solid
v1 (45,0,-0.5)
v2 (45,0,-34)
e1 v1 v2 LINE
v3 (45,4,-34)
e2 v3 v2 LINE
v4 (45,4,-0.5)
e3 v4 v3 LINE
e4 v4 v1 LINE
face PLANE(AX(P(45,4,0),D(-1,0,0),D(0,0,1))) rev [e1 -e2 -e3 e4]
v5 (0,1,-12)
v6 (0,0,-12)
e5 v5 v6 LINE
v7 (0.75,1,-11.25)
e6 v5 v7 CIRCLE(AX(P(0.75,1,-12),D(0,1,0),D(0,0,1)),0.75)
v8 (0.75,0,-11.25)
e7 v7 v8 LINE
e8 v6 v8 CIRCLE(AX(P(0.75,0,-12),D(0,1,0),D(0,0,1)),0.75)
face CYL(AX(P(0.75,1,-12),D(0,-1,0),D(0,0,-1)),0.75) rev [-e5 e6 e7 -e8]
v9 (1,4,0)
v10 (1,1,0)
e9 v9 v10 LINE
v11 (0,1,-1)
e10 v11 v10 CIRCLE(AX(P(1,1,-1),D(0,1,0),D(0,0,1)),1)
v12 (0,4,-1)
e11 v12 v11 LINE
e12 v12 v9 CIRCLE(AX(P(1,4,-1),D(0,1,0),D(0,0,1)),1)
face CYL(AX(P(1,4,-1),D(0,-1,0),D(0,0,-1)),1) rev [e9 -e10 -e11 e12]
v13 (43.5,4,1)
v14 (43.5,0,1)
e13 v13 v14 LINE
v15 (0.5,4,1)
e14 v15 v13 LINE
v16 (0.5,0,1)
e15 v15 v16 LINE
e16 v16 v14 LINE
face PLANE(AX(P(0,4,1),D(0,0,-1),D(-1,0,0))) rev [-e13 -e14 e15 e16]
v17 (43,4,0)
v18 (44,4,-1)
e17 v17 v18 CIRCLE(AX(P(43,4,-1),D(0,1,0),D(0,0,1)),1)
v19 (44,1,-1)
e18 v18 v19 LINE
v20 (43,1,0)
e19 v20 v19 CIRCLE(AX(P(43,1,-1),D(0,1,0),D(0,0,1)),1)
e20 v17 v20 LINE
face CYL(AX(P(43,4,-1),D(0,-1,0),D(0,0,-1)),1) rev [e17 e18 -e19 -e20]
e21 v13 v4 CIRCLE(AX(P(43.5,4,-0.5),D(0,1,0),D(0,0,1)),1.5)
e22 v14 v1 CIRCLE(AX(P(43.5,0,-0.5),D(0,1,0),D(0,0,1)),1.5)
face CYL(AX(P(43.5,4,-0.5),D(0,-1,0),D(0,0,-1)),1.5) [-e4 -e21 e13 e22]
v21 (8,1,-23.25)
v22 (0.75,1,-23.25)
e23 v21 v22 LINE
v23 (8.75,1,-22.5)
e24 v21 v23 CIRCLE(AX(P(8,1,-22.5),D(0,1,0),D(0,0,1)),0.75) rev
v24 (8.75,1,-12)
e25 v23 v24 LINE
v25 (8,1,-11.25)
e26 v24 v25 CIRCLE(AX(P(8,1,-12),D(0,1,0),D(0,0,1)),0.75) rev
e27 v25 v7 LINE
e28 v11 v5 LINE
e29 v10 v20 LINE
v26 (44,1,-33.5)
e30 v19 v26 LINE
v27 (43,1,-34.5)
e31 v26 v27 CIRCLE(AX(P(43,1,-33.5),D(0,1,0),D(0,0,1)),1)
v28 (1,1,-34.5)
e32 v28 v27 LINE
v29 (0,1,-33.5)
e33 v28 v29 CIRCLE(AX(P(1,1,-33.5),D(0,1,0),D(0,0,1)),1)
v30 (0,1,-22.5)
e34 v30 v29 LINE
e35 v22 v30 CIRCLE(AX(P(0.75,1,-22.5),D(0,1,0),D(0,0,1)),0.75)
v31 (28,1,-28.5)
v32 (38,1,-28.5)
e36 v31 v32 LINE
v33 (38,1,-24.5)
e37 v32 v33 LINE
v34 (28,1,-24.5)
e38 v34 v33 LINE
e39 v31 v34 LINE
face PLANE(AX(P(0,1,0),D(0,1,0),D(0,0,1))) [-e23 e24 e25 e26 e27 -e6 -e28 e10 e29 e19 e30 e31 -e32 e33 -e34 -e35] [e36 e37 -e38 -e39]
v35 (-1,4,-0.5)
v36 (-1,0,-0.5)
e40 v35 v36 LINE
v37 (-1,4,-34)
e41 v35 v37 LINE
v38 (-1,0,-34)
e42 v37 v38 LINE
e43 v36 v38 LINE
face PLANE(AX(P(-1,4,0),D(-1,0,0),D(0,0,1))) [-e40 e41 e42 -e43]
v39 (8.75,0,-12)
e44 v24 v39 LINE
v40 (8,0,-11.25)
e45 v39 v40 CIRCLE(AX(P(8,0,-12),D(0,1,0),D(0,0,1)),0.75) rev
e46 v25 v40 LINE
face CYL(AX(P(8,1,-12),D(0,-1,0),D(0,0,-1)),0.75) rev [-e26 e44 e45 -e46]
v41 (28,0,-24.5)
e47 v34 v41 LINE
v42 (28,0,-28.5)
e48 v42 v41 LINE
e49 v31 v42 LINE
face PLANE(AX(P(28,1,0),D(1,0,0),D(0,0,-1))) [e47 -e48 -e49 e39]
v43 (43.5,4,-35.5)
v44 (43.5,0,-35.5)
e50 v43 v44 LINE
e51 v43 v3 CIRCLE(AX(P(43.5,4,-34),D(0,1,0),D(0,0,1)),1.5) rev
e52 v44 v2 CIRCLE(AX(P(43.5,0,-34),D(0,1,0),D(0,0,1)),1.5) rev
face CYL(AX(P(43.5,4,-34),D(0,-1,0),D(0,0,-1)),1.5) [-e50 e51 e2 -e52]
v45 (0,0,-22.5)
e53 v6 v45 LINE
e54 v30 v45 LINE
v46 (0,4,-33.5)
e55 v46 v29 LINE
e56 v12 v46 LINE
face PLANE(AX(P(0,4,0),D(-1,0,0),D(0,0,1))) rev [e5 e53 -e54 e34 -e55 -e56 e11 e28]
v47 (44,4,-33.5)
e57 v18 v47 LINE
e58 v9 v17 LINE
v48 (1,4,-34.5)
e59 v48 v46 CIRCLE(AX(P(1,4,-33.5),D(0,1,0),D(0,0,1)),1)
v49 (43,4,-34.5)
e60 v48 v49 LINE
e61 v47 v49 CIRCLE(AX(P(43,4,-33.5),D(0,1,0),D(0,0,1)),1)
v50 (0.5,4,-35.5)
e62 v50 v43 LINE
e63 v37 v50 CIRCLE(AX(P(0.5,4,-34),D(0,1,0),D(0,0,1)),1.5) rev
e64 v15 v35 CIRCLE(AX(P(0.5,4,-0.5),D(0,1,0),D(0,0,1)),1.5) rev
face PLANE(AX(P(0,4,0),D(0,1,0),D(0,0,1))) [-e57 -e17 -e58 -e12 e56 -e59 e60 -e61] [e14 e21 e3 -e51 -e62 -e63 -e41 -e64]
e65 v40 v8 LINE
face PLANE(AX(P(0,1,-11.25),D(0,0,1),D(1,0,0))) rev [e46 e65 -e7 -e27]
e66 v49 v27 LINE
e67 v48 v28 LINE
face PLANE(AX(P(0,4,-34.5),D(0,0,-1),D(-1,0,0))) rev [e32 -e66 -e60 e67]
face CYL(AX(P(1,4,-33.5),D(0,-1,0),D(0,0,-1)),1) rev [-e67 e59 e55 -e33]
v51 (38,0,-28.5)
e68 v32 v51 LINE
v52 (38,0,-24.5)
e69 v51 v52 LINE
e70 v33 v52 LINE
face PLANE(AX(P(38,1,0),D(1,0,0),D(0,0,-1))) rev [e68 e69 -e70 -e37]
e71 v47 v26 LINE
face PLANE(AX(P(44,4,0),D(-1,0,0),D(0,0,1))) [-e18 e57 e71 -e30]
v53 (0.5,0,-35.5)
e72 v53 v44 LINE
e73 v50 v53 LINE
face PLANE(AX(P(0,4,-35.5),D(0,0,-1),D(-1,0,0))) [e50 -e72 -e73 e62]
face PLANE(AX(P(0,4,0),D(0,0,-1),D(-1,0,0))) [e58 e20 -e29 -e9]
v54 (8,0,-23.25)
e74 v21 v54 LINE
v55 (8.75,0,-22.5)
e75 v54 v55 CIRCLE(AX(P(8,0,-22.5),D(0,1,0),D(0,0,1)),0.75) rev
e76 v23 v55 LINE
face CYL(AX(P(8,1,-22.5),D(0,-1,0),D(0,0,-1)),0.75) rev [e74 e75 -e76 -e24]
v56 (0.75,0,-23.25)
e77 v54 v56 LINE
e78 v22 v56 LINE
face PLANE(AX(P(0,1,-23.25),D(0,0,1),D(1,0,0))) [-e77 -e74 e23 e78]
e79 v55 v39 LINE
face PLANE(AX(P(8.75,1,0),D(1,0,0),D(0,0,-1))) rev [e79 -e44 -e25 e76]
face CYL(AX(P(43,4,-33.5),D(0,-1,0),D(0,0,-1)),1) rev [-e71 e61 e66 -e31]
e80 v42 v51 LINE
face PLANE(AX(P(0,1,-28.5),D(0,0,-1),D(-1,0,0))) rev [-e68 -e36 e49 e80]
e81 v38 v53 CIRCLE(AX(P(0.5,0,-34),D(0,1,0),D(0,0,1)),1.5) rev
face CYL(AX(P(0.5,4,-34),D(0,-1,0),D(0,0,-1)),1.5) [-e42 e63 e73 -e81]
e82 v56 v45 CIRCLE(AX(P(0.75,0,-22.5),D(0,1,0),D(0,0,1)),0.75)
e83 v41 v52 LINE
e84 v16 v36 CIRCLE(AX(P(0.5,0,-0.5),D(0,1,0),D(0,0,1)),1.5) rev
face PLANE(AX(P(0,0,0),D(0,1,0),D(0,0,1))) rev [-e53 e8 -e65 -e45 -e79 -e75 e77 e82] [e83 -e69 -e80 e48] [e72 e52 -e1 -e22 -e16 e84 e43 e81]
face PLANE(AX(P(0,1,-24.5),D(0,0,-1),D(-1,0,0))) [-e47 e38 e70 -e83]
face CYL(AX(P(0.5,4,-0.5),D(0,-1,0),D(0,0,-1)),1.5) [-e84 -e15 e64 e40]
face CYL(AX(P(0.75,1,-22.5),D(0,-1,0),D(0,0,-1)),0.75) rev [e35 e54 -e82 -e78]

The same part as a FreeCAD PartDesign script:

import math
import FreeCAD as App
import Part
import Sketcher
Q = App.Units.Quantity


def add_polygon(sketch, points):
    """Adds a closed chain of lines whose ends are joined by coincident constraints."""
    first, n = sketch.GeometryCount, len(points)
    for a, b in zip(points, points[1:] + points[:1]):
        sketch.addGeometry(Part.LineSegment(App.Vector(*a, 0), App.Vector(*b, 0)), False)
    for i in range(n):
        sketch.addConstraint(Sketcher.Constraint("Coincident", first + i, 2, first + (i + 1) % n, 1))

doc = App.newDocument("Part")
body = doc.addObject("PartDesign::Body", "Body")

# Sketch on XZ plane
sketch1 = body.newObject("Sketcher::SketchObject", "Sketch")
sketch1.AttachmentSupport = (doc.getObject("XZ_Plane"), [""])
sketch1.MapMode = "FlatFace"
sketch1.addGeometry(Part.LineSegment(App.Vector(8.8, -22.5, 0), App.Vector(8.8, -12, 0)), False)  # 0
sketch1.addGeometry(Part.ArcOfCircle(Part.Circle(App.Vector(8, -12, 0), App.Vector(0, 0, 1), 0.8), math.radians(0), math.radians(90)), False)  # 1
sketch1.addGeometry(Part.LineSegment(App.Vector(8, -11.2, 0), App.Vector(0.8, -11.2, 0)), False)  # 2
sketch1.addGeometry(Part.ArcOfCircle(Part.Circle(App.Vector(0.8, -12, 0), App.Vector(0, 0, 1), 0.8), math.radians(90), math.radians(180)), False)  # 3
sketch1.addGeometry(Part.LineSegment(App.Vector(0, -12, 0), App.Vector(0, -1, 0)), False)  # 4
sketch1.addGeometry(Part.ArcOfCircle(Part.Circle(App.Vector(1, -1, 0), App.Vector(0, 0, 1), 1), math.radians(90), math.radians(180)), False)  # 5
sketch1.addGeometry(Part.LineSegment(App.Vector(1, 0, 0), App.Vector(43, 0, 0)), False)  # 6
sketch1.addGeometry(Part.ArcOfCircle(Part.Circle(App.Vector(43, -1, 0), App.Vector(0, 0, 1), 1), math.radians(0), math.radians(90)), False)  # 7
sketch1.addGeometry(Part.LineSegment(App.Vector(44, -1, 0), App.Vector(44, -33.5, 0)), False)  # 8
sketch1.addGeometry(Part.ArcOfCircle(Part.Circle(App.Vector(43, -33.5, 0), App.Vector(0, 0, 1), 1), math.radians(-90), math.radians(0)), False)  # 9
sketch1.addGeometry(Part.LineSegment(App.Vector(43, -34.5, 0), App.Vector(1, -34.5, 0)), False)  # 10
sketch1.addGeometry(Part.ArcOfCircle(Part.Circle(App.Vector(1, -33.5, 0), App.Vector(0, 0, 1), 1), math.radians(-180), math.radians(-90)), False)  # 11
sketch1.addGeometry(Part.LineSegment(App.Vector(0, -33.5, 0), App.Vector(0, -22.5, 0)), False)  # 12
sketch1.addGeometry(Part.ArcOfCircle(Part.Circle(App.Vector(0.8, -22.5, 0), App.Vector(0, 0, 1), 0.8), math.radians(180), math.radians(270)), False)  # 13
sketch1.addGeometry(Part.LineSegment(App.Vector(0.8, -23.2, 0), App.Vector(8, -23.2, 0)), False)  # 14
sketch1.addGeometry(Part.ArcOfCircle(Part.Circle(App.Vector(8, -22.5, 0), App.Vector(0, 0, 1), 0.8), math.radians(-90), math.radians(0)), False)  # 15
add_polygon(sketch1, [(38, -24.5), (28, -24.5), (28, -28.5), (38, -28.5)])  # lines 16-19
sketch1.addConstraint(Sketcher.Constraint("Tangent", 0, 2, 1, 1))
sketch1.addConstraint(Sketcher.Constraint("Tangent", 1, 2, 2, 1))
sketch1.addConstraint(Sketcher.Constraint("Tangent", 2, 2, 3, 1))
sketch1.addConstraint(Sketcher.Constraint("Tangent", 3, 2, 4, 1))
sketch1.addConstraint(Sketcher.Constraint("Tangent", 4, 2, 5, 2))
sketch1.addConstraint(Sketcher.Constraint("Tangent", 5, 1, 6, 1))
sketch1.addConstraint(Sketcher.Constraint("Tangent", 6, 2, 7, 2))
sketch1.addConstraint(Sketcher.Constraint("Tangent", 7, 1, 8, 1))
sketch1.addConstraint(Sketcher.Constraint("Tangent", 8, 2, 9, 2))
sketch1.addConstraint(Sketcher.Constraint("Tangent", 9, 1, 10, 1))
sketch1.addConstraint(Sketcher.Constraint("Tangent", 10, 2, 11, 2))
sketch1.addConstraint(Sketcher.Constraint("Tangent", 11, 1, 12, 1))
sketch1.addConstraint(Sketcher.Constraint("Tangent", 12, 2, 13, 1))
sketch1.addConstraint(Sketcher.Constraint("Tangent", 13, 2, 14, 1))
sketch1.addConstraint(Sketcher.Constraint("Tangent", 14, 2, 15, 1))
sketch1.addConstraint(Sketcher.Constraint("Tangent", 15, 2, 0, 1))
sketch1.addConstraint(Sketcher.Constraint("Vertical", 0))
sketch1.addConstraint(Sketcher.Constraint("Horizontal", 2))
sketch1.addConstraint(Sketcher.Constraint("Vertical", 4))
sketch1.addConstraint(Sketcher.Constraint("Horizontal", 6))
sketch1.addConstraint(Sketcher.Constraint("Vertical", 8))
sketch1.addConstraint(Sketcher.Constraint("Horizontal", 10))
sketch1.addConstraint(Sketcher.Constraint("Vertical", 12))
sketch1.addConstraint(Sketcher.Constraint("Horizontal", 14))
sketch1.addConstraint(Sketcher.Constraint("Horizontal", 16))
sketch1.addConstraint(Sketcher.Constraint("Vertical", 17))
sketch1.addConstraint(Sketcher.Constraint("Horizontal", 18))
sketch1.addConstraint(Sketcher.Constraint("Vertical", 19))
sketch1.addConstraint(Sketcher.Constraint("Equal", 1, 3))
sketch1.addConstraint(Sketcher.Constraint("Equal", 5, 7))
sketch1.addConstraint(Sketcher.Constraint("Equal", 7, 9))
sketch1.addConstraint(Sketcher.Constraint("Equal", 9, 11))
sketch1.addConstraint(Sketcher.Constraint("Equal", 3, 13))
sketch1.addConstraint(Sketcher.Constraint("Equal", 13, 15))
sketch1.addConstraint(Sketcher.Constraint("PointOnObject", 3, 2, -2))
sketch1.addConstraint(Sketcher.Constraint("PointOnObject", 5, 1, -1))
sketch1.addConstraint(Sketcher.Constraint("PointOnObject", 11, 1, -2))
sketch1.addConstraint(Sketcher.Constraint("Equal", 4, 12))
sketch1.addConstraint(Sketcher.Constraint("Radius", 5, Q("1 mm")))
sketch1.addConstraint(Sketcher.Constraint("DistanceX", 6, 1, 6, 2, Q("42 mm")))
sketch1.addConstraint(Sketcher.Constraint("DistanceX", 16, 2, 16, 1, Q("10 mm")))
sketch1.addConstraint(Sketcher.Constraint("DistanceY", 4, 1, 4, 2, Q("11 mm")))
sketch1.addConstraint(Sketcher.Constraint("DistanceY", 17, 2, 17, 1, Q("4 mm")))
sketch1.addConstraint(Sketcher.Constraint("Radius", 1, Q("0.75 mm")))
sketch1.addConstraint(Sketcher.Constraint("DistanceY", 0, 1, 0, 2, Q("10.5 mm")))
sketch1.addConstraint(Sketcher.Constraint("DistanceX", -1, 1, 1, 3, Q("8 mm")))
sketch1.addConstraint(Sketcher.Constraint("DistanceX", -1, 1, 16, 2, Q("28 mm")))
sketch1.addConstraint(Sketcher.Constraint("DistanceY", 9, 3, 16, 2, Q("9 mm")))
pad1 = body.newObject("PartDesign::Pad", "Pad")
pad1.Profile = sketch1
pad1.Length = 1
pad1.Reversed = True

# Sketch on XZ plane
sketch2 = body.newObject("Sketcher::SketchObject", "Sketch001")
sketch2.AttachmentSupport = (doc.getObject("XZ_Plane"), [""])
sketch2.MapMode = "FlatFace"
sketch2.addGeometry(Part.ArcOfCircle(Part.Circle(App.Vector(43.5, -34, 0), App.Vector(0, 0, 1), 1.5), math.radians(-90), math.radians(0)), False)
sketch2.addGeometry(Part.LineSegment(App.Vector(43.5, -35.5, 0), App.Vector(0.5, -35.5, 0)), False)
sketch2.addGeometry(Part.ArcOfCircle(Part.Circle(App.Vector(0.5, -34, 0), App.Vector(0, 0, 1), 1.5), math.radians(180), math.radians(270)), False)
sketch2.addGeometry(Part.LineSegment(App.Vector(-1, -34, 0), App.Vector(-1, -0.5, 0)), False)
sketch2.addGeometry(Part.ArcOfCircle(Part.Circle(App.Vector(0.5, -0.5, 0), App.Vector(0, 0, 1), 1.5), math.radians(90), math.radians(180)), False)
sketch2.addGeometry(Part.LineSegment(App.Vector(0.5, 1, 0), App.Vector(43.5, 1, 0)), False)
sketch2.addGeometry(Part.ArcOfCircle(Part.Circle(App.Vector(43.5, -0.5, 0), App.Vector(0, 0, 1), 1.5), math.radians(0), math.radians(90)), False)
sketch2.addGeometry(Part.LineSegment(App.Vector(45, -0.5, 0), App.Vector(45, -34, 0)), False)
sketch2.addGeometry(Part.LineSegment(App.Vector(1, -34.5, 0), App.Vector(43, -34.5, 0)), False)
sketch2.addGeometry(Part.ArcOfCircle(Part.Circle(App.Vector(43, -33.5, 0), App.Vector(0, 0, 1), 1), math.radians(-90), math.radians(0)), False)
sketch2.addGeometry(Part.LineSegment(App.Vector(44, -33.5, 0), App.Vector(44, -1, 0)), False)
sketch2.addGeometry(Part.ArcOfCircle(Part.Circle(App.Vector(43, -1, 0), App.Vector(0, 0, 1), 1), math.radians(0), math.radians(90)), False)
sketch2.addGeometry(Part.LineSegment(App.Vector(43, 0, 0), App.Vector(1, 0, 0)), False)
sketch2.addGeometry(Part.ArcOfCircle(Part.Circle(App.Vector(1, -1, 0), App.Vector(0, 0, 1), 1), math.radians(90), math.radians(180)), False)
sketch2.addGeometry(Part.LineSegment(App.Vector(0, -1, 0), App.Vector(0, -33.5, 0)), False)
sketch2.addGeometry(Part.ArcOfCircle(Part.Circle(App.Vector(1, -33.5, 0), App.Vector(0, 0, 1), 1), math.radians(-180), math.radians(-90)), False)
sketch2.addConstraint(Sketcher.Constraint("Tangent", 0, 1, 1, 1))
sketch2.addConstraint(Sketcher.Constraint("Tangent", 1, 2, 2, 2))
sketch2.addConstraint(Sketcher.Constraint("Tangent", 2, 1, 3, 1))
sketch2.addConstraint(Sketcher.Constraint("Tangent", 3, 2, 4, 2))
sketch2.addConstraint(Sketcher.Constraint("Tangent", 4, 1, 5, 1))
sketch2.addConstraint(Sketcher.Constraint("Tangent", 5, 2, 6, 2))
sketch2.addConstraint(Sketcher.Constraint("Tangent", 6, 1, 7, 1))
sketch2.addConstraint(Sketcher.Constraint("Tangent", 7, 2, 0, 2))
sketch2.addConstraint(Sketcher.Constraint("Tangent", 8, 2, 9, 1))
sketch2.addConstraint(Sketcher.Constraint("Tangent", 9, 2, 10, 1))
sketch2.addConstraint(Sketcher.Constraint("Tangent", 10, 2, 11, 1))
sketch2.addConstraint(Sketcher.Constraint("Tangent", 11, 2, 12, 1))
sketch2.addConstraint(Sketcher.Constraint("Tangent", 12, 2, 13, 1))
sketch2.addConstraint(Sketcher.Constraint("Tangent", 13, 2, 14, 1))
sketch2.addConstraint(Sketcher.Constraint("Tangent", 14, 2, 15, 1))
sketch2.addConstraint(Sketcher.Constraint("Tangent", 15, 2, 8, 1))
sketch2.addConstraint(Sketcher.Constraint("Horizontal", 1))
sketch2.addConstraint(Sketcher.Constraint("Vertical", 3))
sketch2.addConstraint(Sketcher.Constraint("Horizontal", 5))
sketch2.addConstraint(Sketcher.Constraint("Vertical", 7))
sketch2.addConstraint(Sketcher.Constraint("Horizontal", 8))
sketch2.addConstraint(Sketcher.Constraint("Vertical", 10))
sketch2.addConstraint(Sketcher.Constraint("Horizontal", 12))
sketch2.addConstraint(Sketcher.Constraint("Vertical", 14))
sketch2.addConstraint(Sketcher.Constraint("Equal", 0, 2))
sketch2.addConstraint(Sketcher.Constraint("Equal", 2, 4))
sketch2.addConstraint(Sketcher.Constraint("Equal", 4, 6))
sketch2.addConstraint(Sketcher.Constraint("Equal", 9, 11))
sketch2.addConstraint(Sketcher.Constraint("Equal", 11, 13))
sketch2.addConstraint(Sketcher.Constraint("Equal", 13, 15))
sketch2.addConstraint(Sketcher.Constraint("PointOnObject", 11, 2, -1))
sketch2.addConstraint(Sketcher.Constraint("PointOnObject", 13, 2, -2))
sketch2.addConstraint(Sketcher.Constraint("Radius", 9, Q("1 mm")))
sketch2.addConstraint(Sketcher.Constraint("Radius", 0, Q("1.5 mm")))
sketch2.addConstraint(Sketcher.Constraint("DistanceX", 1, 2, 1, 1, Q("43 mm")))
sketch2.addConstraint(Sketcher.Constraint("DistanceX", 8, 1, 8, 2, Q("42 mm")))
sketch2.addConstraint(Sketcher.Constraint("DistanceY", 3, 1, 3, 2, Q("33.5 mm")))
sketch2.addConstraint(Sketcher.Constraint("DistanceY", 10, 1, 10, 2, Q("32.5 mm")))
sketch2.addConstraint(Sketcher.Constraint("DistanceY", 0, 3, -1, 1, Q("34 mm")))
sketch2.addConstraint(Sketcher.Constraint("DistanceX", 2, 1, -1, 1, Q("1 mm")))
pad2 = body.newObject("PartDesign::Pad", "Pad001")
pad2.Profile = sketch2
pad2.Length = 4
pad2.Reversed = True

doc.recompute()
